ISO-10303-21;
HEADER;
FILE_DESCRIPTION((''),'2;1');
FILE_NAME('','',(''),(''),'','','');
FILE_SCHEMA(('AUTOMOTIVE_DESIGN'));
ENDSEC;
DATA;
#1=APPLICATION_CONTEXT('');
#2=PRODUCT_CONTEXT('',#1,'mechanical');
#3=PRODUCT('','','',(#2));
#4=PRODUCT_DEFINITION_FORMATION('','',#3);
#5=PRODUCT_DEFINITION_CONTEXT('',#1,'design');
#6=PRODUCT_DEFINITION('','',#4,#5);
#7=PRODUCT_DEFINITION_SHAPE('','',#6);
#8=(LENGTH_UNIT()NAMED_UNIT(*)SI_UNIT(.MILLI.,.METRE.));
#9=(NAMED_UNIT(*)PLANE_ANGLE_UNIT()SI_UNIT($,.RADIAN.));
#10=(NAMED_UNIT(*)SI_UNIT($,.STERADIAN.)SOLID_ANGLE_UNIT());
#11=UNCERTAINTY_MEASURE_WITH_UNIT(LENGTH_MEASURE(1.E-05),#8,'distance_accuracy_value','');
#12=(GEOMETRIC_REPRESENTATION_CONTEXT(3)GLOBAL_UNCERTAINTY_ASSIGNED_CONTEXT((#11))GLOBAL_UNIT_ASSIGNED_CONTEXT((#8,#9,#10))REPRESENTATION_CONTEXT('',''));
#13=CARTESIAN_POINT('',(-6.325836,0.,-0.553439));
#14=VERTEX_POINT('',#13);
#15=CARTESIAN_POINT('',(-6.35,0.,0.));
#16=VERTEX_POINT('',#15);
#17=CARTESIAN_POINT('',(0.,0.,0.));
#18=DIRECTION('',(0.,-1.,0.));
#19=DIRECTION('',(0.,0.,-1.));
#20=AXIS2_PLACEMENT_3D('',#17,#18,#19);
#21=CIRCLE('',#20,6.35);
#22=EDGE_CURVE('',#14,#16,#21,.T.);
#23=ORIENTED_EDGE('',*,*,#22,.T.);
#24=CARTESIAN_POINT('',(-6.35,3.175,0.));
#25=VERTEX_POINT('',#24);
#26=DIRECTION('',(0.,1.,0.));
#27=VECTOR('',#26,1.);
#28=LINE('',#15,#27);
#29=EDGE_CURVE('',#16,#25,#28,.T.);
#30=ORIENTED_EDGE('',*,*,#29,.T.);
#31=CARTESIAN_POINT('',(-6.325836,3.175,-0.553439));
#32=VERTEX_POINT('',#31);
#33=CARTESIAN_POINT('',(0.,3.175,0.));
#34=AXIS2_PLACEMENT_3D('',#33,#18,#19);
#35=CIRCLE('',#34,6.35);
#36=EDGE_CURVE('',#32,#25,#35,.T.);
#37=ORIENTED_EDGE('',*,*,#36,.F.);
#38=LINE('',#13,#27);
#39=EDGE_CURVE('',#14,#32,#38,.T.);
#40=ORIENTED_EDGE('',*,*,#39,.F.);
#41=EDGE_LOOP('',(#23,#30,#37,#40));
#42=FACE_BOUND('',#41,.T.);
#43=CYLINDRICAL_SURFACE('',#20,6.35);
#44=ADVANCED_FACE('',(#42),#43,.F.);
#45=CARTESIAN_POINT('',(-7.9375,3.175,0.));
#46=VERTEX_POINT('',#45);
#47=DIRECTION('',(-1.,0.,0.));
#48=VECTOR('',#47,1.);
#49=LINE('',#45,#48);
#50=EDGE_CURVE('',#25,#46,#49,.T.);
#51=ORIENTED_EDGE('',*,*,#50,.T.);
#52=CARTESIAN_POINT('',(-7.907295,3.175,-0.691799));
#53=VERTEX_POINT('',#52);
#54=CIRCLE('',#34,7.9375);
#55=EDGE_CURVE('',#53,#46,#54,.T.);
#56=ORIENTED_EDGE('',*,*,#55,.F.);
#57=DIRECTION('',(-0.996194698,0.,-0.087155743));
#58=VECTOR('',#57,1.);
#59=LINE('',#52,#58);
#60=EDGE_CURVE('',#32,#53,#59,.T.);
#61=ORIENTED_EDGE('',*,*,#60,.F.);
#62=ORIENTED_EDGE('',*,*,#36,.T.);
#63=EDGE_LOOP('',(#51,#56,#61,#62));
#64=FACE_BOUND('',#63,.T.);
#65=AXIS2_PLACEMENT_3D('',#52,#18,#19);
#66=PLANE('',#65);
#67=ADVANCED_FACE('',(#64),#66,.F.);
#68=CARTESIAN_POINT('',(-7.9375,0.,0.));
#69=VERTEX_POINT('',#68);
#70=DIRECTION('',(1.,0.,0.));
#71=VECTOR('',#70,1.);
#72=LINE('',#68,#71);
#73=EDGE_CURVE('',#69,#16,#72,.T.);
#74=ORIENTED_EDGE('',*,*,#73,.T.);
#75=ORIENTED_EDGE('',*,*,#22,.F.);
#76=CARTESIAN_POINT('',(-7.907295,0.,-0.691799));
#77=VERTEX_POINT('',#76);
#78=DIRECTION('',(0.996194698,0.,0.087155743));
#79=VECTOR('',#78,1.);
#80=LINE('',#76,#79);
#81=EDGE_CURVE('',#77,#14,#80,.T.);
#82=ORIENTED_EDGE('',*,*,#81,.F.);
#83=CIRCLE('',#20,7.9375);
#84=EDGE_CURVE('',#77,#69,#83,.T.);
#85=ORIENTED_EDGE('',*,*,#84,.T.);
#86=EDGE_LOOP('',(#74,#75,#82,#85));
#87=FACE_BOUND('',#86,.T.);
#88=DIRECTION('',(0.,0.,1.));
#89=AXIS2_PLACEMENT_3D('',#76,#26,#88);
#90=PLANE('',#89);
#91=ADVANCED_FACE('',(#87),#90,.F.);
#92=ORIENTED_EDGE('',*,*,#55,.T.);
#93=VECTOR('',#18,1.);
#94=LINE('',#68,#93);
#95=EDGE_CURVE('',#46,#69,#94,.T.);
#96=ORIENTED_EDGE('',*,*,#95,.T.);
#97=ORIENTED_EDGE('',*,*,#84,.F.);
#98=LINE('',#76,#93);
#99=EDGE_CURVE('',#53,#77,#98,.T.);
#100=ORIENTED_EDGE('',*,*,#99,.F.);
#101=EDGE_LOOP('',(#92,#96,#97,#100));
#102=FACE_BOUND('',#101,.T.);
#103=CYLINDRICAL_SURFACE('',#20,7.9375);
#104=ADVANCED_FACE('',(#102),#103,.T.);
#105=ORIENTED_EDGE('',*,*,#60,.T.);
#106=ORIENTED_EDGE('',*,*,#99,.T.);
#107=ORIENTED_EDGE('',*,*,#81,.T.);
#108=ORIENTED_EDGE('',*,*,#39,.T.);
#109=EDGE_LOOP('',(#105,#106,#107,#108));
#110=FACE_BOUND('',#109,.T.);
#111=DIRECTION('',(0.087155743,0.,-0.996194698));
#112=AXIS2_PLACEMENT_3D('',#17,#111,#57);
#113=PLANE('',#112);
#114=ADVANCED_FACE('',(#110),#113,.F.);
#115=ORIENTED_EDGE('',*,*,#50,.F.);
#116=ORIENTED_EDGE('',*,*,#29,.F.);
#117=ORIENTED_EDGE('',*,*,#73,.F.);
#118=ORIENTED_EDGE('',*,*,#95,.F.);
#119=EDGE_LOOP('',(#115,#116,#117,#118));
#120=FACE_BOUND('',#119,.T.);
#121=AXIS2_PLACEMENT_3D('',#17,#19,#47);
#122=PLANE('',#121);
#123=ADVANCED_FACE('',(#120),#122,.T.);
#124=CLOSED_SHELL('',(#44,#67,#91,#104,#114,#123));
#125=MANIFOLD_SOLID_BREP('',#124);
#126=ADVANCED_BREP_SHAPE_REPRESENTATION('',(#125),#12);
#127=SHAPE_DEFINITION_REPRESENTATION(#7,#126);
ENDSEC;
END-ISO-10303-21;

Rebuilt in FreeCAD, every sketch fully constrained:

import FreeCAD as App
import Part
import Sketcher

V = App.Vector
Q = App.Units.Quantity


def add_polygon(sketch, points):
    """Adds a closed chain of lines whose ends are joined by coincident constraints."""
    first, n = sketch.GeometryCount, len(points)
    for a, b in zip(points, points[1:] + points[:1]):
        sketch.addGeometry(Part.LineSegment(App.Vector(*a, 0), App.Vector(*b, 0)), False)
    for i in range(n):
        sketch.addConstraint(Sketcher.Constraint("Coincident", first + i, 2, first + (i + 1) % n, 1))

doc = App.newDocument("Part")
body = doc.addObject("PartDesign::Body", "Body")

sketch1 = body.newObject("Sketcher::SketchObject", "Sketch")
sketch1.AttachmentSupport = (doc.getObject("XY_Plane"), [""])
sketch1.MapMode = "FlatFace"
add_polygon(sketch1, [(-7.9, 3.2), (-7.9, 0), (-6.3, 0), (-6.3, 3.2)])
sketch1.addConstraint([
    Sketcher.Constraint("Vertical", 0),
    Sketcher.Constraint("Horizontal", 1),
    Sketcher.Constraint("Vertical", 2),
    Sketcher.Constraint("Horizontal", 3),
    Sketcher.Constraint("PointOnObject", 0, 2, -1),
    Sketcher.Constraint("DistanceX", 1, 1, 1, 2, Q("0.0625 in")),
    Sketcher.Constraint("DistanceY", 0, 2, 0, 1, Q("0.125 in")),
    Sketcher.Constraint("DistanceX", 1, 2, -1, 1, Q("0.25 in")),
])
revolution = body.newObject("PartDesign::Revolution", "Revolution")
revolution.Profile = sketch1
revolution.ReferenceAxis = (sketch1, ["V_Axis"])
revolution.Angle = 355

doc.recompute()
